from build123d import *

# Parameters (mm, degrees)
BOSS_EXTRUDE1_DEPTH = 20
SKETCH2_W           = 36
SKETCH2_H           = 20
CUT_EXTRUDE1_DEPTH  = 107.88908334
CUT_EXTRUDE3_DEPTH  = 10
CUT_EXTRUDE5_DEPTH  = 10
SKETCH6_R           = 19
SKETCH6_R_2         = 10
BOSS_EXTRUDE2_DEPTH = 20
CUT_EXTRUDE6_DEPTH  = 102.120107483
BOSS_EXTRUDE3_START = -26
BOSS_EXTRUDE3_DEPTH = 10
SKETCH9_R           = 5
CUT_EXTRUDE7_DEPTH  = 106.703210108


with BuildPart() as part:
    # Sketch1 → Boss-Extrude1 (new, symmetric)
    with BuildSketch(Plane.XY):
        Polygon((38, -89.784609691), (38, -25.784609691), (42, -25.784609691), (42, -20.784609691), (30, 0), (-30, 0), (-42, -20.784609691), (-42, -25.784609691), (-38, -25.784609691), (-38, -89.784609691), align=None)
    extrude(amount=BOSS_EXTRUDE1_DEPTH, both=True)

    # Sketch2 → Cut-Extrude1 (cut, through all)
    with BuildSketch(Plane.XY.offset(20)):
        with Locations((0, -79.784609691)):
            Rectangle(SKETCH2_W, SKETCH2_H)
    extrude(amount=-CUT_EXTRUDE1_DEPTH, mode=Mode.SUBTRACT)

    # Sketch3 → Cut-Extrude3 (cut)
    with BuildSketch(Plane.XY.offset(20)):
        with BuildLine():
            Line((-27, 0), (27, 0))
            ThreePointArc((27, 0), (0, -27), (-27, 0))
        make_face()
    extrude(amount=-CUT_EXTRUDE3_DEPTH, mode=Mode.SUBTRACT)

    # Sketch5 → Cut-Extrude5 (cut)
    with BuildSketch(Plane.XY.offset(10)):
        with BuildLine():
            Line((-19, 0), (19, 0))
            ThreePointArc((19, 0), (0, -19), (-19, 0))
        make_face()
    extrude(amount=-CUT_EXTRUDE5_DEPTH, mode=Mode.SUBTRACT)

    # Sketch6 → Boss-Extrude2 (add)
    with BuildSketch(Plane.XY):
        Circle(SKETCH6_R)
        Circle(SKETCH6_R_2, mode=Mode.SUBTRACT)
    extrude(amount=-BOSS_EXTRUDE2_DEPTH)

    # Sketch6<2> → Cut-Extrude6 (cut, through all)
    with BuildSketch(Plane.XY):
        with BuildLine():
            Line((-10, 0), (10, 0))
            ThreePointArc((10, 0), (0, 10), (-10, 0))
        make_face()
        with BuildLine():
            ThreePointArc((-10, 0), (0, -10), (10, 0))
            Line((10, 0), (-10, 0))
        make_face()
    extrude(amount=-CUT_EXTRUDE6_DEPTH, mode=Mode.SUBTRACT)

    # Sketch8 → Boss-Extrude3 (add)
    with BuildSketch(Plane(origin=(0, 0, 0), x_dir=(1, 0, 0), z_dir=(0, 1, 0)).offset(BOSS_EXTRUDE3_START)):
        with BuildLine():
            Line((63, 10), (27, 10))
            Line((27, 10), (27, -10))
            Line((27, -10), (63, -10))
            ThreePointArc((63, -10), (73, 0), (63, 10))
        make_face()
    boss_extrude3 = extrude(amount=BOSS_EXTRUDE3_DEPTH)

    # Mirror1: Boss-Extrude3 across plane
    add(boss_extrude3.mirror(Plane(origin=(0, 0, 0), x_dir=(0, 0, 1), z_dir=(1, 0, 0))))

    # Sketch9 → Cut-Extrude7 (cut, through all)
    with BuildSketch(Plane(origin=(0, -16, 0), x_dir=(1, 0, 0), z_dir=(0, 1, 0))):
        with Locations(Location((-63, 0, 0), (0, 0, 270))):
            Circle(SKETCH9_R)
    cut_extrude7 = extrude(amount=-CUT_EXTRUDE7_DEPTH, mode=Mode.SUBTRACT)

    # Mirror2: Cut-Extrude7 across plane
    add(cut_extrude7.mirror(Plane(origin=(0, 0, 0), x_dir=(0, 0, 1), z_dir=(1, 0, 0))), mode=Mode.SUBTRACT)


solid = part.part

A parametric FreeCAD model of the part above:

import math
import FreeCAD as App
import Part
import Sketcher
from FreeCAD import Vector
Q = App.Units.Quantity

doc = App.newDocument("Part")
body = doc.addObject("PartDesign::Body", "Body")

# Sketch on XY plane
sketch1 = body.newObject("Sketcher::SketchObject", "Sketch")
sketch1.AttachmentSupport = (doc.getObject("XY_Plane"), [""])
sketch1.MapMode = "FlatFace"
sketch1.addGeometry([
    Part.LineSegment(Vector(38, -89.78461, 0), Vector(38, -25.78461, 0)),  # 0
    Part.LineSegment(Vector(38, -25.78461, 0), Vector(42, -25.78461, 0)),  # 1
    Part.LineSegment(Vector(42, -25.78461, 0), Vector(42, -20.78461, 0)),  # 2
    Part.LineSegment(Vector(42, -20.78461, 0), Vector(30, 0, 0)),  # 3
    Part.LineSegment(Vector(30, 0, 0), Vector(-30, 0, 0)),  # 4
    Part.LineSegment(Vector(-30, 0, 0), Vector(-42, -20.78461, 0)),  # 5
    Part.LineSegment(Vector(-42, -20.78461, 0), Vector(-42, -25.78461, 0)),  # 6
    Part.LineSegment(Vector(-42, -25.78461, 0), Vector(-38, -25.78461, 0)),  # 7
    Part.LineSegment(Vector(-38, -25.78461, 0), Vector(-38, -89.78461, 0)),  # 8
    Part.LineSegment(Vector(-38, -89.78461, 0), Vector(38, -89.78461, 0)),  # 9
], False)
sketch1.addConstraint([
    Sketcher.Constraint("Coincident", 0, 2, 1, 1),
    Sketcher.Constraint("Coincident", 1, 2, 2, 1),
    Sketcher.Constraint("Coincident", 2, 2, 3, 1),
    Sketcher.Constraint("Coincident", 3, 2, 4, 1),
    Sketcher.Constraint("Coincident", 4, 2, 5, 1),
    Sketcher.Constraint("Coincident", 5, 2, 6, 1),
    Sketcher.Constraint("Coincident", 6, 2, 7, 1),
    Sketcher.Constraint("Coincident", 7, 2, 8, 1),
    Sketcher.Constraint("Coincident", 8, 2, 9, 1),
    Sketcher.Constraint("Coincident", 9, 2, 0, 1),
    Sketcher.Constraint("Vertical", 0),
    Sketcher.Constraint("Horizontal", 1),
    Sketcher.Constraint("Vertical", 2),
    Sketcher.Constraint("Horizontal", 4),
    Sketcher.Constraint("Vertical", 6),
    Sketcher.Constraint("Horizontal", 7),
    Sketcher.Constraint("Vertical", 8),
    Sketcher.Constraint("Horizontal", 9),
    Sketcher.Constraint("Symmetric", 3, 2, 4, 2, -1, 1),
    Sketcher.Constraint("Symmetric", 2, 2, 5, 2, -2),
    Sketcher.Constraint("Symmetric", 0, 2, 7, 2, -2),
    Sketcher.Constraint("DistanceX", 1, 1, 1, 2, Q("4 mm")),
    Sketcher.Constraint("DistanceX", 4, 2, 4, 1, Q("60 mm")),
    Sketcher.Constraint("DistanceX", 9, 1, 9, 2, Q("76 mm")),
    Sketcher.Constraint("DistanceY", 0, 1, 0, 2, Q("64 mm")),
    Sketcher.Constraint("DistanceY", 2, 1, 2, 2, Q("5 mm")),
    Sketcher.Constraint("Angle", 3, Q("120 deg")),
])
pad1 = body.newObject("PartDesign::Pad", "Pad")
pad1.Profile = sketch1
pad1.Length = 40
pad1.Midplane = True

# Sketch on XY plane
sketch2 = body.newObject("Sketcher::SketchObject", "Sketch001")
sketch2.AttachmentSupport = (doc.getObject("XY_Plane"), [""])
sketch2.MapMode = "FlatFace"
sketch2.AttachmentOffset = App.Placement(Vector(0, 0, 20), App.Rotation())
sketch2.addGeometry([
    Part.LineSegment(Vector(-18, -69.78461, 0), Vector(-18, -89.78461, 0)),
    Part.LineSegment(Vector(-18, -89.78461, 0), Vector(18, -89.78461, 0)),
    Part.LineSegment(Vector(18, -89.78461, 0), Vector(18, -69.78461, 0)),
    Part.LineSegment(Vector(18, -69.78461, 0), Vector(-18, -69.78461, 0)),
], False)
sketch2.addConstraint([
    Sketcher.Constraint("Coincident", 0, 2, 1, 1),
    Sketcher.Constraint("Coincident", 1, 2, 2, 1),
    Sketcher.Constraint("Coincident", 2, 2, 3, 1),
    Sketcher.Constraint("Coincident", 3, 2, 0, 1),
    Sketcher.Constraint("Vertical", 0),
    Sketcher.Constraint("Horizontal", 1),
    Sketcher.Constraint("Vertical", 2),
    Sketcher.Constraint("Horizontal", 3),
    Sketcher.Constraint("DistanceX", 1, 1, 1, 2, Q("36 mm")),
    Sketcher.Constraint("DistanceY", 0, 2, 0, 1, Q("20 mm")),
    Sketcher.Constraint("DistanceX", 0, 2, -1, 1, Q("18 mm")),
    Sketcher.Constraint("DistanceY", 0, 2, -1, 1, Q("89.78461 mm")),
])
pocket1 = body.newObject("PartDesign::Pocket", "Pocket")
pocket1.Profile = sketch2
pocket1.Type = "ThroughAll"

# Sketch on XY plane
sketch3 = body.newObject("Sketcher::SketchObject", "Sketch002")
sketch3.AttachmentSupport = (doc.getObject("XY_Plane"), [""])
sketch3.MapMode = "FlatFace"
sketch3.AttachmentOffset = App.Placement(Vector(0, 0, 20), App.Rotation())
sketch3.addGeometry([
    Part.LineSegment(Vector(27, 0, 0), Vector(-27, 0, 0)),
    Part.ArcOfCircle(Part.Circle(Vector(0, 0, 0), Vector(0, 0, 1), 27), math.radians(180), math.radians(360)),
], False)
sketch3.addConstraint([
    Sketcher.Constraint("Coincident", 0, 1, 1, 2),
    Sketcher.Constraint("Coincident", 1, 1, 0, 2),
    Sketcher.Constraint("Horizontal", 0),
    Sketcher.Constraint("Coincident", 1, 3, -1, 1),
    Sketcher.Constraint("PointOnObject", 0, 1, -1),
    Sketcher.Constraint("Radius", 1, Q("27 mm")),
])
pocket2 = body.newObject("PartDesign::Pocket", "Pocket001")
pocket2.Profile = sketch3
pocket2.Length = 10

# Sketch on XY plane
sketch4 = body.newObject("Sketcher::SketchObject", "Sketch003")
sketch4.AttachmentSupport = (doc.getObject("XY_Plane"), [""])
sketch4.MapMode = "FlatFace"
sketch4.AttachmentOffset = App.Placement(Vector(0, 0, 10), App.Rotation())
sketch4.addGeometry([
    Part.LineSegment(Vector(19, 0, 0), Vector(-19, 0, 0)),
    Part.ArcOfCircle(Part.Circle(Vector(0, 0, 0), Vector(0, 0, 1), 19), math.radians(180), math.radians(360)),
], False)
sketch4.addConstraint([
    Sketcher.Constraint("Coincident", 0, 1, 1, 2),
    Sketcher.Constraint("Coincident", 1, 1, 0, 2),
    Sketcher.Constraint("Horizontal", 0),
    Sketcher.Constraint("Coincident", 1, 3, -1, 1),
    Sketcher.Constraint("PointOnObject", 0, 1, -1),
    Sketcher.Constraint("Radius", 1, Q("19 mm")),
])
pocket3 = body.newObject("PartDesign::Pocket", "Pocket002")
pocket3.Profile = sketch4
pocket3.Length = 10

# Sketch on XY plane
sketch5 = body.newObject("Sketcher::SketchObject", "Sketch004")
sketch5.AttachmentSupport = (doc.getObject("XY_Plane"), [""])
sketch5.MapMode = "FlatFace"
sketch5.addGeometry([
    Part.Circle(Vector(0, 0, 0), Vector(0, 0, 1), 19),
    Part.Circle(Vector(0, 0, 0), Vector(0, 0, 1), 10),
], False)
sketch5.addConstraint([
    Sketcher.Constraint("Coincident", 0, 3, -1, 1),
    Sketcher.Constraint("Coincident", 1, 3, -1, 1),
    Sketcher.Constraint("Diameter", 0, Q("38 mm")),
    Sketcher.Constraint("Diameter", 1, Q("20 mm")),
])
pad2 = body.newObject("PartDesign::Pad", "Pad001")
pad2.Profile = sketch5
pad2.Length = 20
pad2.Reversed = True

# Sketch on XY plane
sketch6 = body.newObject("Sketcher::SketchObject", "Sketch005")
sketch6.AttachmentSupport = (doc.getObject("XY_Plane"), [""])
sketch6.MapMode = "FlatFace"
sketch6.addGeometry(Part.Circle(Vector(0, 0, 0), Vector(0, 0, 1), 10), False)
sketch6.addConstraint([
    Sketcher.Constraint("Coincident", 0, 3, -1, 1),
    Sketcher.Constraint("Diameter", 0, Q("20 mm")),
])
pocket4 = body.newObject("PartDesign::Pocket", "Pocket003")
pocket4.Profile = sketch6
pocket4.Type = "ThroughAll"

# Sketch on XZ plane
sketch7 = body.newObject("Sketcher::SketchObject", "Sketch006")
sketch7.AttachmentSupport = (doc.getObject("XZ_Plane"), [""])
sketch7.MapMode = "FlatFace"
sketch7.AttachmentOffset = App.Placement(Vector(0, 0, 26), App.Rotation())
sketch7.addGeometry([
    Part.LineSegment(Vector(63, -10, 0), Vector(27, -10, 0)),
    Part.LineSegment(Vector(27, -10, 0), Vector(27, 10, 0)),
    Part.LineSegment(Vector(27, 10, 0), Vector(63, 10, 0)),
    Part.ArcOfCircle(Part.Circle(Vector(63, 0, 0), Vector(0, 0, 1), 10), math.radians(-90), math.radians(90)),
], False)
sketch7.addConstraint([
    Sketcher.Constraint("Coincident", 0, 2, 1, 1),
    Sketcher.Constraint("Coincident", 1, 2, 2, 1),
    Sketcher.Constraint("Tangent", 2, 2, 3, 2),
    Sketcher.Constraint("Tangent", 3, 1, 0, 1),
    Sketcher.Constraint("Horizontal", 0),
    Sketcher.Constraint("Vertical", 1),
    Sketcher.Constraint("Horizontal", 2),
    Sketcher.Constraint("PointOnObject", 3, 3, -1),
    Sketcher.Constraint("Radius", 3, Q("10 mm")),
    Sketcher.Constraint("DistanceX", 0, 2, 0, 1, Q("36 mm")),
    Sketcher.Constraint("DistanceX", -1, 1, 3, 3, Q("63 mm")),
])
pad3 = body.newObject("PartDesign::Pad", "Pad002")
pad3.Profile = sketch7
pad3.Length = 10
pad3.Reversed = True
doc.recompute()

mirrored = body.newObject("PartDesign::Mirrored", "Mirrored")
mirrored.Originals = [pad3]
mirrored.MirrorPlane = (doc.getObject("YZ_Plane"), [""])
body.Tip = mirrored

# Sketch on XZ plane
sketch8 = body.newObject("Sketcher::SketchObject", "Sketch007")
sketch8.AttachmentSupport = (doc.getObject("XZ_Plane"), [""])
sketch8.MapMode = "FlatFace"
sketch8.AttachmentOffset = App.Placement(Vector(0, 0, 16), App.Rotation())
sketch8.addGeometry(Part.Circle(Vector(-63, 0, 0), Vector(0, 0, 1), 5), False)
sketch8.addConstraint([
    Sketcher.Constraint("PointOnObject", 0, 3, -1),
    Sketcher.Constraint("Diameter", 0, Q("10 mm")),
    Sketcher.Constraint("DistanceX", 0, 3, -1, 1, Q("63 mm")),
])
pocket5 = body.newObject("PartDesign::Pocket", "Pocket004")
pocket5.Profile = sketch8
pocket5.Type = "ThroughAll"
pocket5.Reversed = True
doc.recompute()

mirrored2 = body.newObject("PartDesign::Mirrored", "Mirrored001")
mirrored2.Originals = [pocket5]
mirrored2.MirrorPlane = (doc.getObject("YZ_Plane"), [""])
body.Tip = mirrored2

doc.recompute()
